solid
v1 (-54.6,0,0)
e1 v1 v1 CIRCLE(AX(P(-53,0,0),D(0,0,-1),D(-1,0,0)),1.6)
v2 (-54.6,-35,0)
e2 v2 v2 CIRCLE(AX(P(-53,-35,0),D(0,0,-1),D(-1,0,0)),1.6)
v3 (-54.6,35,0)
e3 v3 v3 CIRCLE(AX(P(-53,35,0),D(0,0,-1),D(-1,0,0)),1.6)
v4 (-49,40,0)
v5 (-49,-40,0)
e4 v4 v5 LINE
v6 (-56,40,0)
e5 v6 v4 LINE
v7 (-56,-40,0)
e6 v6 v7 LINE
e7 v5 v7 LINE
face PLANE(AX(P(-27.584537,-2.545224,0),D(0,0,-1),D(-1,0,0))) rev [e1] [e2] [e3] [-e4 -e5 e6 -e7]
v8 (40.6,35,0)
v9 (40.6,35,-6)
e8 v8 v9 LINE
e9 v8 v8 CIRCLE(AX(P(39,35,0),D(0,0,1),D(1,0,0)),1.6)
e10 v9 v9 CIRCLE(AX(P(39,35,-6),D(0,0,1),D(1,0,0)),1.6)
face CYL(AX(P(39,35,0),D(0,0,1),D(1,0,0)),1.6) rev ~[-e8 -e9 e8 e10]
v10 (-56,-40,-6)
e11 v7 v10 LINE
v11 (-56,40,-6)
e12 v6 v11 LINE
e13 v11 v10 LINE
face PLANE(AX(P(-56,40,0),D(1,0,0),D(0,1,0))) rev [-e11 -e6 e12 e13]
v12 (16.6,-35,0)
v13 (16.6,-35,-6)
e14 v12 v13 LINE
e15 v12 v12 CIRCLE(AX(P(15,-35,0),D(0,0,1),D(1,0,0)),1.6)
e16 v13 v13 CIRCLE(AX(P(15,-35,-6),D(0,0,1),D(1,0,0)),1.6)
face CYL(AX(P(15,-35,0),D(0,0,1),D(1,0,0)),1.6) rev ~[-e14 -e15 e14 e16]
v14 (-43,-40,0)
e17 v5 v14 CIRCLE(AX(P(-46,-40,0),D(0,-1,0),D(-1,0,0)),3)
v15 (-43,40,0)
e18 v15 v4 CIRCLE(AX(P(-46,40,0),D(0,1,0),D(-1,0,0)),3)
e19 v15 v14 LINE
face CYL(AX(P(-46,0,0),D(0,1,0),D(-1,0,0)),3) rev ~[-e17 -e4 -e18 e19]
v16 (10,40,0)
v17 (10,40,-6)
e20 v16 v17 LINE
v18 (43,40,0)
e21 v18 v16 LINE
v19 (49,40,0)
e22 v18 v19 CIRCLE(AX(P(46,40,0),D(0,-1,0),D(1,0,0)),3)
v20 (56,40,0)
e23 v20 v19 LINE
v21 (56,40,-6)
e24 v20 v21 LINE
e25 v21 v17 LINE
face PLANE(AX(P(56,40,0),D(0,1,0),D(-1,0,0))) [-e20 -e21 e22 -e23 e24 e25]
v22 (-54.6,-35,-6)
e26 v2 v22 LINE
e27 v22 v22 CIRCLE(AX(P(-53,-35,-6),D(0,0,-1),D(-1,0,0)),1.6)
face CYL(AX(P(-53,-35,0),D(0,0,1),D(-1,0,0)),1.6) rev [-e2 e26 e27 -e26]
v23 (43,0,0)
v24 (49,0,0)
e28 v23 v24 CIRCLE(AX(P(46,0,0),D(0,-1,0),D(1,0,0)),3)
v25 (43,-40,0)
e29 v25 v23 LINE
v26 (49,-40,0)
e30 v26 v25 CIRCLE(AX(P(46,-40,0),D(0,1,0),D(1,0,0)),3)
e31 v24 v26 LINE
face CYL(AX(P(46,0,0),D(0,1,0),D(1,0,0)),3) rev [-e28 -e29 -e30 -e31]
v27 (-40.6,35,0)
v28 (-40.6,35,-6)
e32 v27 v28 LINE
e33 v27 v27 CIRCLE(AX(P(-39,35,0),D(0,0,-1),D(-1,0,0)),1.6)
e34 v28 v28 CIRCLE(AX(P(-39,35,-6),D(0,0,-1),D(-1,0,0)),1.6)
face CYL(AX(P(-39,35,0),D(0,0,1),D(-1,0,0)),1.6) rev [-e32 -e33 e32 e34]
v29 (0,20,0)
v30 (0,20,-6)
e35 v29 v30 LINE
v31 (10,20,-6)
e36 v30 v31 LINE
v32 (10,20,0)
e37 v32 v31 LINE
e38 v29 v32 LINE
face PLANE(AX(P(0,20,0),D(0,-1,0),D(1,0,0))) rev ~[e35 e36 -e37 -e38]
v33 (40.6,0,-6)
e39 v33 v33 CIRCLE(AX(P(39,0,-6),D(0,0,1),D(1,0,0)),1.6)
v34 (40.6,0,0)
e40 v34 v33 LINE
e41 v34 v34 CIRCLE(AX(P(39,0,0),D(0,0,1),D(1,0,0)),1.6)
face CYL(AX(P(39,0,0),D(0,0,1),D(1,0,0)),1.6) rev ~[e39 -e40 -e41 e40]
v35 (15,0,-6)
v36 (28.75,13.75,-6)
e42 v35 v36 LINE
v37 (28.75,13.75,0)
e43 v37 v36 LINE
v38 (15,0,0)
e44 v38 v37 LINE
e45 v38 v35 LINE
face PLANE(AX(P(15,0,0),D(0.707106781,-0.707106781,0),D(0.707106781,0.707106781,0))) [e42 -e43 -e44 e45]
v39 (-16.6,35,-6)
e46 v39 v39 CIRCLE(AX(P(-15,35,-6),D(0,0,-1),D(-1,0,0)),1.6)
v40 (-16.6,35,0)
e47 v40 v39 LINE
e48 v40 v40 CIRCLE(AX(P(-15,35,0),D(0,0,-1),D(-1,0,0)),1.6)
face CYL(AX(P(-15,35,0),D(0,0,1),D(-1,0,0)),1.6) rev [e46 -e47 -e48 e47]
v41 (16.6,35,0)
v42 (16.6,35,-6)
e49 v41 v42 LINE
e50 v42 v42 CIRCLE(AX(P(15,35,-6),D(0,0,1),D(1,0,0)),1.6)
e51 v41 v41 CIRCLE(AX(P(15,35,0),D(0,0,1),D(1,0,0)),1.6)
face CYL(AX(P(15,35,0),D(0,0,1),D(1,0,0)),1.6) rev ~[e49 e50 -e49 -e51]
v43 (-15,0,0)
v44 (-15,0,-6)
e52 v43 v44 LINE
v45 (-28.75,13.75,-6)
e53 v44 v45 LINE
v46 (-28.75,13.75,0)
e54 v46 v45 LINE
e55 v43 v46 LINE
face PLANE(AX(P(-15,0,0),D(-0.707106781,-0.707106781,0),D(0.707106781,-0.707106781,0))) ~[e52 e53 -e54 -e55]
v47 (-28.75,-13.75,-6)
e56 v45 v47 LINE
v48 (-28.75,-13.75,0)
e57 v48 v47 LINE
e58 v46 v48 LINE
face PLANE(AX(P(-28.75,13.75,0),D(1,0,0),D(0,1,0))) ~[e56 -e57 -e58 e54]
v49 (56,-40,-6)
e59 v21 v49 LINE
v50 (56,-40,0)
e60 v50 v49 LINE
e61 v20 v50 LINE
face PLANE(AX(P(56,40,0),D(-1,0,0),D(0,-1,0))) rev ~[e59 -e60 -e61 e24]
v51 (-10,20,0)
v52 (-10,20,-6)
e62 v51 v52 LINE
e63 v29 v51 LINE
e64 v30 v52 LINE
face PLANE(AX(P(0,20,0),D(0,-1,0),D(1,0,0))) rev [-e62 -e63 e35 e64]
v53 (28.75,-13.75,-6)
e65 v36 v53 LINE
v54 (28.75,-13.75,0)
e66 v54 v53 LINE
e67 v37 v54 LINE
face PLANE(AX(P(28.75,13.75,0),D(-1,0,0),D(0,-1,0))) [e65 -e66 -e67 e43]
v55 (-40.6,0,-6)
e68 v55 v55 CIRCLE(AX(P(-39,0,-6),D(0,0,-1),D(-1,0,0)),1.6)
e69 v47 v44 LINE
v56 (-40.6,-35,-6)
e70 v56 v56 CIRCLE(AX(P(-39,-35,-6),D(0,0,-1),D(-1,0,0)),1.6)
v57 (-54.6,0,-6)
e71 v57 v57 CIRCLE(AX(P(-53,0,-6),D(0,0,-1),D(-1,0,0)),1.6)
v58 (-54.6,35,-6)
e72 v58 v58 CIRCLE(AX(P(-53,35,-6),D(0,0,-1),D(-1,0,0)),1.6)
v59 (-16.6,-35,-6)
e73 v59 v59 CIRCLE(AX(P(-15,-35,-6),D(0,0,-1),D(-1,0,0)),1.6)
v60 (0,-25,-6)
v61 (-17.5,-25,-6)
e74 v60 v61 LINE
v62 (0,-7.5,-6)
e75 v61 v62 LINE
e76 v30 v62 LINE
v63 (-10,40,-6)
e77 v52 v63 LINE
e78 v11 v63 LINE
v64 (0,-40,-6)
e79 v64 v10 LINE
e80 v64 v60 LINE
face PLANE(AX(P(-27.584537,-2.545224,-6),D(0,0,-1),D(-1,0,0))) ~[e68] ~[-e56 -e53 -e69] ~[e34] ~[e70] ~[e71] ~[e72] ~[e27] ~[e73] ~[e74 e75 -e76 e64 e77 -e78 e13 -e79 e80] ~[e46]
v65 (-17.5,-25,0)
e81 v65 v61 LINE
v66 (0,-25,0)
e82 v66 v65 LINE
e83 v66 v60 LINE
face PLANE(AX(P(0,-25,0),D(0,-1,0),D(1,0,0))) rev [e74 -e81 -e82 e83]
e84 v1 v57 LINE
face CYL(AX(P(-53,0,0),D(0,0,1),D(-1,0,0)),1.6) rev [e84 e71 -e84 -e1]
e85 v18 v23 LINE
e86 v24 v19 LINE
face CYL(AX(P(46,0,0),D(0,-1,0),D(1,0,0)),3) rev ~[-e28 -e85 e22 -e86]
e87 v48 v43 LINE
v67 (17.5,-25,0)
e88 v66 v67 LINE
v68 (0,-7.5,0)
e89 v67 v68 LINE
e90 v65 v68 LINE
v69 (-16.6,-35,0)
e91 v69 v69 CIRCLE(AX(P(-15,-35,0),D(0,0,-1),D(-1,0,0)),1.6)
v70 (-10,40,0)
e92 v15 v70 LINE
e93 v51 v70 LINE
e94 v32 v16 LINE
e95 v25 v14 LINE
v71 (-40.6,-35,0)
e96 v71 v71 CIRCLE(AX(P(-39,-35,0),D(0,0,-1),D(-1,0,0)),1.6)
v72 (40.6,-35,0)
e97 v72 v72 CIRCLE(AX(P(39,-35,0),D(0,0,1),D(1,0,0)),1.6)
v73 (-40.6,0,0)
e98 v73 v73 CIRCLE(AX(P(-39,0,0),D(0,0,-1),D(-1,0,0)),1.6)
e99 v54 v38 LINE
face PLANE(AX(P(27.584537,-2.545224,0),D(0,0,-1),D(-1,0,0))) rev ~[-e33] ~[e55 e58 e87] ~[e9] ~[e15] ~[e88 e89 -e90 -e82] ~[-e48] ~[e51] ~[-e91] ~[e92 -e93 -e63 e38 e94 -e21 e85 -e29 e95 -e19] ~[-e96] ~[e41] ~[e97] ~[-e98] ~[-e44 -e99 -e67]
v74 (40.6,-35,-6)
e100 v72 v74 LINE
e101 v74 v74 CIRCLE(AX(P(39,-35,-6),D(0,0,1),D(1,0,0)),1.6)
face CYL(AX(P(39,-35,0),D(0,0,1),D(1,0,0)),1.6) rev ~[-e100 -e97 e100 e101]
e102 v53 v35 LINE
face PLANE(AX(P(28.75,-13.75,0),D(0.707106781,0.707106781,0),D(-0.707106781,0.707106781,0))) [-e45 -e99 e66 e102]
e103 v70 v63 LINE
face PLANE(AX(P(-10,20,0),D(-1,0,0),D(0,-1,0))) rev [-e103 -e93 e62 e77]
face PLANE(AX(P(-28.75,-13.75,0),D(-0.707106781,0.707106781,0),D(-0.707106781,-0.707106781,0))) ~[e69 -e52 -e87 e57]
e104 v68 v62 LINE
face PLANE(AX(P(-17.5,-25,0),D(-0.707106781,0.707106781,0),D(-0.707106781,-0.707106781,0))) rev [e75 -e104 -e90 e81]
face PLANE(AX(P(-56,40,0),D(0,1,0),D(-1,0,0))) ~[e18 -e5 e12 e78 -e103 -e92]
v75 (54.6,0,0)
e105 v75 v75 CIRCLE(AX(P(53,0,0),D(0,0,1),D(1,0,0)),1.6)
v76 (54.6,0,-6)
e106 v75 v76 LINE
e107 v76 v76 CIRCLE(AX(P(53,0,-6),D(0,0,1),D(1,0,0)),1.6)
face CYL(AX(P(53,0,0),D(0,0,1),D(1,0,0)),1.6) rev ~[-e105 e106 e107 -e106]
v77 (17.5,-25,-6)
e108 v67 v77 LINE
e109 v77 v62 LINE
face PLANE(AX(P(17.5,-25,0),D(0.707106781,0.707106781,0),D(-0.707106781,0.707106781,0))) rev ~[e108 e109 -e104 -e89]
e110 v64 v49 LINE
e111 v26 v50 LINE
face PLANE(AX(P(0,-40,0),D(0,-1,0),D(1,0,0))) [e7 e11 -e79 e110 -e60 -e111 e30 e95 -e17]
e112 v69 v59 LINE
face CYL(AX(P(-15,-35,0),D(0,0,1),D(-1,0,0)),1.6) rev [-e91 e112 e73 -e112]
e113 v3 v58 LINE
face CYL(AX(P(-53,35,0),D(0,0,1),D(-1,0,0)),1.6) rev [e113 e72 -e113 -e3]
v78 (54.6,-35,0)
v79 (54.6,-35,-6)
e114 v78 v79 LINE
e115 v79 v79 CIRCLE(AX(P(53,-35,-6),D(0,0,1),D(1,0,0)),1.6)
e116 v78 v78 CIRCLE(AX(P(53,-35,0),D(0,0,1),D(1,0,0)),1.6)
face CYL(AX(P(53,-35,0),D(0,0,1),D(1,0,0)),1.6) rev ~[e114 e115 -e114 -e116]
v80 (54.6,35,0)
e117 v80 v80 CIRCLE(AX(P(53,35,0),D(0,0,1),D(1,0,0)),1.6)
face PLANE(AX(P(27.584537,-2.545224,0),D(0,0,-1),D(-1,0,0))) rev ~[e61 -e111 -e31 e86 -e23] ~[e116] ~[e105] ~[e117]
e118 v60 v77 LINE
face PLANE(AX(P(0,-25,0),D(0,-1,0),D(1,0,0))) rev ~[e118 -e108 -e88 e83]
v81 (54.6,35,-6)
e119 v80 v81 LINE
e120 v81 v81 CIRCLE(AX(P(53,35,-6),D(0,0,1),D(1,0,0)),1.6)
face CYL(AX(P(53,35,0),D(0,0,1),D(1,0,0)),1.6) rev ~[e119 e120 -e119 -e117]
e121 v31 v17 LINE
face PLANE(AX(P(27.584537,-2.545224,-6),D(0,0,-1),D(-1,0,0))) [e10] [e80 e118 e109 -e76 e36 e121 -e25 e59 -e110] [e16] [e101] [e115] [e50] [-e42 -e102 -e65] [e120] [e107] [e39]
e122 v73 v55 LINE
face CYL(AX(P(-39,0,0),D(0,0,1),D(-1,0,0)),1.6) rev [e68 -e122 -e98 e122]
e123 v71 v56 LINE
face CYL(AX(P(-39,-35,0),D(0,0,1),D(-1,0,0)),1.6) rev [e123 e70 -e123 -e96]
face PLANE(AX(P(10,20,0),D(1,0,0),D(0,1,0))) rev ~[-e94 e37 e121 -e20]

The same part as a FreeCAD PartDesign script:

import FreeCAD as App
import Part
import Sketcher

V = App.Vector
Q = App.Units.Quantity

doc = App.newDocument("Part")
body = doc.addObject("PartDesign::Body", "Body")

# Sketch on XY plane
sketch1 = body.newObject("Sketcher::SketchObject", "Sketch")
sketch1.AttachmentSupport = (doc.getObject("XY_Plane"), [""])
sketch1.MapMode = "FlatFace"
sketch1.addGeometry([
    Part.LineSegment(V(0, -40, 0), V(56, -40, 0)),  # 0
    Part.LineSegment(V(56, -40, 0), V(56, 40, 0)),  # 1
    Part.LineSegment(V(56, 40, 0), V(10, 40, 0)),  # 2
    Part.LineSegment(V(10, 40, 0), V(10, 20, 0)),  # 3
    Part.LineSegment(V(10, 20, 0), V(0, 20, 0)),  # 4
    Part.LineSegment(V(0, 20, 0), V(0, -7.5, 0)),  # 5
    Part.LineSegment(V(0, -7.5, 0), V(17.5, -25, 0)),  # 6
    Part.LineSegment(V(17.5, -25, 0), V(0, -25, 0)),  # 7
    Part.LineSegment(V(0, -25, 0), V(0, -40, 0)),  # 8
    Part.Circle(V(53, -35, 0), V(0, 0, 1), 1.6),  # 9
    Part.Circle(V(39, -35, 0), V(0, 0, 1), 1.6),  # 10
    Part.Circle(V(15, -35, 0), V(0, 0, 1), 1.6),  # 11
    Part.Circle(V(53, 0, 0), V(0, 0, 1), 1.6),  # 12
    Part.Circle(V(39, 0, 0), V(0, 0, 1), 1.6),  # 13
    Part.Circle(V(53, 35, 0), V(0, 0, 1), 1.6),  # 14
    Part.Circle(V(39, 35, 0), V(0, 0, 1), 1.6),  # 15
    Part.LineSegment(V(15, 0, 0), V(28.75, 13.75, 0)),  # 16
    Part.LineSegment(V(28.75, 13.75, 0), V(28.75, -13.75, 0)),  # 17
    Part.LineSegment(V(28.75, -13.75, 0), V(15, 0, 0)),  # 18
    Part.Circle(V(15, 35, 0), V(0, 0, 1), 1.6),  # 19
], False)
sketch1.addConstraint([
    Sketcher.Constraint("Coincident", 0, 2, 1, 1),
    Sketcher.Constraint("Coincident", 1, 2, 2, 1),
    Sketcher.Constraint("Coincident", 2, 2, 3, 1),
    Sketcher.Constraint("Coincident", 3, 2, 4, 1),
    Sketcher.Constraint("Coincident", 4, 2, 5, 1),
    Sketcher.Constraint("Coincident", 5, 2, 6, 1),
    Sketcher.Constraint("Coincident", 6, 2, 7, 1),
    Sketcher.Constraint("Coincident", 7, 2, 8, 1),
    Sketcher.Constraint("Coincident", 8, 2, 0, 1),
    Sketcher.Constraint("Coincident", 16, 2, 17, 1),
    Sketcher.Constraint("Coincident", 17, 2, 18, 1),
    Sketcher.Constraint("Coincident", 18, 2, 16, 1),
    Sketcher.Constraint("Horizontal", 0),
    Sketcher.Constraint("Vertical", 1),
    Sketcher.Constraint("Horizontal", 2),
    Sketcher.Constraint("Vertical", 3),
    Sketcher.Constraint("Horizontal", 4),
    Sketcher.Constraint("Vertical", 5),
    Sketcher.Constraint("Horizontal", 7),
    Sketcher.Constraint("Vertical", 8),
    Sketcher.Constraint("Vertical", 17),
    Sketcher.Constraint("Equal", 9, 10),
    Sketcher.Constraint("Equal", 10, 11),
    Sketcher.Constraint("Equal", 11, 12),
    Sketcher.Constraint("Equal", 12, 13),
    Sketcher.Constraint("Equal", 13, 14),
    Sketcher.Constraint("Equal", 14, 15),
    Sketcher.Constraint("Equal", 15, 19),
    Sketcher.Constraint("Symmetric", 9, 3, 14, 3, -1),
    Sketcher.Constraint("Symmetric", 10, 3, 15, 3, -1),
    Sketcher.Constraint("Symmetric", 11, 3, 19, 3, -1),
    Sketcher.Constraint("PointOnObject", 12, 3, -1),
    Sketcher.Constraint("PointOnObject", 13, 3, -1),
    Sketcher.Constraint("PointOnObject", 4, 2, -2),
    Sketcher.Constraint("PointOnObject", 7, 2, -2),
    Sketcher.Constraint("PointOnObject", 18, 2, -1),
    Sketcher.Constraint("Perpendicular", 6, 16),
    Sketcher.Constraint("Perpendicular", 16, 18),
    Sketcher.Constraint("Horizontal", 9, 3, 10, 3),
    Sketcher.Constraint("Horizontal", 10, 3, 11, 3),
    Sketcher.Constraint("Vertical", 9, 3, 12, 3),
    Sketcher.Constraint("Vertical", 10, 3, 13, 3),
    Sketcher.Constraint("Vertical", 19, 3, 18, 2),
    Sketcher.Constraint("Equal", 5, 17),
    Sketcher.Constraint("Equal", 16, 18),
    Sketcher.Constraint("Diameter", 9, Q("3.2 mm")),
    Sketcher.Constraint("DistanceX", 0, 1, 0, 2, Q("56 mm")),
    Sketcher.Constraint("DistanceX", 2, 2, 2, 1, Q("46 mm")),
    Sketcher.Constraint("DistanceY", 1, 1, 1, 2, Q("80 mm")),
    Sketcher.Constraint("DistanceY", 3, 2, 3, 1, Q("20 mm")),
    Sketcher.Constraint("DistanceY", 8, 2, 8, 1, Q("15 mm")),
    Sketcher.Constraint("DistanceX", 7, 2, 7, 1, Q("17.5 mm")),
    Sketcher.Constraint("DistanceX", -1, 1, 9, 3, Q("53 mm")),
    Sketcher.Constraint("DistanceY", 9, 3, -1, 1, Q("35 mm")),
    Sketcher.Constraint("DistanceX", -1, 1, 10, 3, Q("39 mm")),
    Sketcher.Constraint("DistanceX", -1, 1, 11, 3, Q("15 mm")),
    Sketcher.Constraint("DistanceY", 0, 2, -1, 1, Q("40 mm")),
])
pad1 = body.newObject("PartDesign::Pad", "Pad")
pad1.Profile = sketch1
pad1.Length = 6
pad1.Reversed = True

# Sketch on XZ plane
sketch2 = body.newObject("Sketcher::SketchObject", "Sketch001")
sketch2.AttachmentSupport = (doc.getObject("XZ_Plane"), [""])
sketch2.MapMode = "FlatFace"
sketch2.addGeometry(Part.Circle(V(46, 0, 0), V(0, 0, 1), 3), False)
sketch2.addConstraint([
    Sketcher.Constraint("PointOnObject", 0, 3, -1),
    Sketcher.Constraint("Diameter", 0, Q("6 mm")),
    Sketcher.Constraint("DistanceX", -1, 1, 0, 3, Q("46 mm")),
])
pocket1 = body.newObject("PartDesign::Pocket", "Pocket")
pocket1.Profile = sketch2
pocket1.Type = "ThroughAll"
pocket1.Midplane = True
body2 = doc.addObject("PartDesign::Body", "Body001")
doc.recompute()

mirroring = doc.addObject("Part::Mirroring", "Mirroring")
mirroring.Source = body
mirroring.Base = V(0, 0, 0)
mirroring.Normal = V(1, 0, 0)
body2.BaseFeature = mirroring
doc.recompute()

boolean = body2.newObject("PartDesign::Boolean", "Boolean")
boolean.Type = "Fuse"
boolean.addObjects([body])
mirroring.Visibility = False

doc.recompute()
